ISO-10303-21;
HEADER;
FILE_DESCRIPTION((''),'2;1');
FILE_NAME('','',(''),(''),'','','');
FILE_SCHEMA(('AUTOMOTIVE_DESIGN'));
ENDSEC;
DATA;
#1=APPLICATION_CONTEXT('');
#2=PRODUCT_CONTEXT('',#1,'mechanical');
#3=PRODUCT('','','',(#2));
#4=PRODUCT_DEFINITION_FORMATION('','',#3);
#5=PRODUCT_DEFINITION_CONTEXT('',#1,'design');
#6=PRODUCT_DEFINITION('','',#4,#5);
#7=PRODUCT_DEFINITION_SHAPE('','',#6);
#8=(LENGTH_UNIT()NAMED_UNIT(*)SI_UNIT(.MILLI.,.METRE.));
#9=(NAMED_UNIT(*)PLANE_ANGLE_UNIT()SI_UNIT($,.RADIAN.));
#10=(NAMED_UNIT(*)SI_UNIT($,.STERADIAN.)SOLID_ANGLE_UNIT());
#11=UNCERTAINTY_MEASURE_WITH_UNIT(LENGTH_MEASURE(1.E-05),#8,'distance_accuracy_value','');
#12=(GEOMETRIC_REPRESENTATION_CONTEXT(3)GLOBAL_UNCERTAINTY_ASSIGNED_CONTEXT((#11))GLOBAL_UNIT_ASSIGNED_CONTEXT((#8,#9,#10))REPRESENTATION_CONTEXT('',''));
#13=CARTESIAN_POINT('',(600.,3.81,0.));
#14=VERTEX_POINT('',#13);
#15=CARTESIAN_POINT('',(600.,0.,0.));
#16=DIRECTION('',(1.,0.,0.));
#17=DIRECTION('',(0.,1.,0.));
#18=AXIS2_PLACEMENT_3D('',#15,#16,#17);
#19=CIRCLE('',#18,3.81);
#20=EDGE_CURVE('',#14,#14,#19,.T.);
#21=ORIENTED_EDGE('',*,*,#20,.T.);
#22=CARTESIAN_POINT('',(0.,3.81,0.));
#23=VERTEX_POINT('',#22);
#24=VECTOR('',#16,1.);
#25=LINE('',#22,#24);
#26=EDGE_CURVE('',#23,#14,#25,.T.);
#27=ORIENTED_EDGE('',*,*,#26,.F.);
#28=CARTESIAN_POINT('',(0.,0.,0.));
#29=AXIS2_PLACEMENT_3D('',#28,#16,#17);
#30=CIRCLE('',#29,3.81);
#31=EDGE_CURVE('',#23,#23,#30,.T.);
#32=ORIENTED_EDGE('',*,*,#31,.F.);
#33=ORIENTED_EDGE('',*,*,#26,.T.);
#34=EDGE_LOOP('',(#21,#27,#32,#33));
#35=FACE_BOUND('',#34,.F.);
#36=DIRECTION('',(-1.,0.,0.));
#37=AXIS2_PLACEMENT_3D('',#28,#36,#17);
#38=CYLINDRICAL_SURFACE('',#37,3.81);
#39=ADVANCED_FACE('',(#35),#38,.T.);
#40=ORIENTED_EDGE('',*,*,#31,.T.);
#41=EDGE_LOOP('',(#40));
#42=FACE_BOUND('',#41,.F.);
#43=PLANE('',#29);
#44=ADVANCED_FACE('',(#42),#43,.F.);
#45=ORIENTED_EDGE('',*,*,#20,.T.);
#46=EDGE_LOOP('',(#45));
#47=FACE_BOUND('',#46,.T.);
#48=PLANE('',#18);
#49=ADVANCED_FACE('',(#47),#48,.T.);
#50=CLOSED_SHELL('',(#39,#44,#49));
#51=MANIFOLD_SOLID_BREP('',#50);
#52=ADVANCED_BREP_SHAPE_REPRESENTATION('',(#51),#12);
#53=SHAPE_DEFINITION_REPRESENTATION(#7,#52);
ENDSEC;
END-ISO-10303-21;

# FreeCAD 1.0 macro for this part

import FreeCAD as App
import Part
import Sketcher

V = App.Vector
Q = App.Units.Quantity

doc = App.newDocument("Part")
body = doc.addObject("PartDesign::Body", "Body")

# Sketch on YZ plane
sketch1 = doc.addObject("Sketcher::SketchObject", "Sketch")
body.addObject(sketch1)
sketch1.AttachmentSupport = (doc.YZ_Plane, [""])
sketch1.MapMode = "FlatFace"
sketch1.addGeometry(Part.Circle(V(0, 0, 0), V(0, 0, 1), 3.8), False)
sketch1.addConstraint([
    Sketcher.Constraint("Coincident", 0, 3, -1, 1),
    Sketcher.Constraint("Diameter", 0, Q("7.62 mm")),
])
pad1 = doc.addObject("PartDesign::Pad", "Pad")
body.addObject(pad1)
pad1.Profile = sketch1
pad1.Length = 600

doc.recompute()
